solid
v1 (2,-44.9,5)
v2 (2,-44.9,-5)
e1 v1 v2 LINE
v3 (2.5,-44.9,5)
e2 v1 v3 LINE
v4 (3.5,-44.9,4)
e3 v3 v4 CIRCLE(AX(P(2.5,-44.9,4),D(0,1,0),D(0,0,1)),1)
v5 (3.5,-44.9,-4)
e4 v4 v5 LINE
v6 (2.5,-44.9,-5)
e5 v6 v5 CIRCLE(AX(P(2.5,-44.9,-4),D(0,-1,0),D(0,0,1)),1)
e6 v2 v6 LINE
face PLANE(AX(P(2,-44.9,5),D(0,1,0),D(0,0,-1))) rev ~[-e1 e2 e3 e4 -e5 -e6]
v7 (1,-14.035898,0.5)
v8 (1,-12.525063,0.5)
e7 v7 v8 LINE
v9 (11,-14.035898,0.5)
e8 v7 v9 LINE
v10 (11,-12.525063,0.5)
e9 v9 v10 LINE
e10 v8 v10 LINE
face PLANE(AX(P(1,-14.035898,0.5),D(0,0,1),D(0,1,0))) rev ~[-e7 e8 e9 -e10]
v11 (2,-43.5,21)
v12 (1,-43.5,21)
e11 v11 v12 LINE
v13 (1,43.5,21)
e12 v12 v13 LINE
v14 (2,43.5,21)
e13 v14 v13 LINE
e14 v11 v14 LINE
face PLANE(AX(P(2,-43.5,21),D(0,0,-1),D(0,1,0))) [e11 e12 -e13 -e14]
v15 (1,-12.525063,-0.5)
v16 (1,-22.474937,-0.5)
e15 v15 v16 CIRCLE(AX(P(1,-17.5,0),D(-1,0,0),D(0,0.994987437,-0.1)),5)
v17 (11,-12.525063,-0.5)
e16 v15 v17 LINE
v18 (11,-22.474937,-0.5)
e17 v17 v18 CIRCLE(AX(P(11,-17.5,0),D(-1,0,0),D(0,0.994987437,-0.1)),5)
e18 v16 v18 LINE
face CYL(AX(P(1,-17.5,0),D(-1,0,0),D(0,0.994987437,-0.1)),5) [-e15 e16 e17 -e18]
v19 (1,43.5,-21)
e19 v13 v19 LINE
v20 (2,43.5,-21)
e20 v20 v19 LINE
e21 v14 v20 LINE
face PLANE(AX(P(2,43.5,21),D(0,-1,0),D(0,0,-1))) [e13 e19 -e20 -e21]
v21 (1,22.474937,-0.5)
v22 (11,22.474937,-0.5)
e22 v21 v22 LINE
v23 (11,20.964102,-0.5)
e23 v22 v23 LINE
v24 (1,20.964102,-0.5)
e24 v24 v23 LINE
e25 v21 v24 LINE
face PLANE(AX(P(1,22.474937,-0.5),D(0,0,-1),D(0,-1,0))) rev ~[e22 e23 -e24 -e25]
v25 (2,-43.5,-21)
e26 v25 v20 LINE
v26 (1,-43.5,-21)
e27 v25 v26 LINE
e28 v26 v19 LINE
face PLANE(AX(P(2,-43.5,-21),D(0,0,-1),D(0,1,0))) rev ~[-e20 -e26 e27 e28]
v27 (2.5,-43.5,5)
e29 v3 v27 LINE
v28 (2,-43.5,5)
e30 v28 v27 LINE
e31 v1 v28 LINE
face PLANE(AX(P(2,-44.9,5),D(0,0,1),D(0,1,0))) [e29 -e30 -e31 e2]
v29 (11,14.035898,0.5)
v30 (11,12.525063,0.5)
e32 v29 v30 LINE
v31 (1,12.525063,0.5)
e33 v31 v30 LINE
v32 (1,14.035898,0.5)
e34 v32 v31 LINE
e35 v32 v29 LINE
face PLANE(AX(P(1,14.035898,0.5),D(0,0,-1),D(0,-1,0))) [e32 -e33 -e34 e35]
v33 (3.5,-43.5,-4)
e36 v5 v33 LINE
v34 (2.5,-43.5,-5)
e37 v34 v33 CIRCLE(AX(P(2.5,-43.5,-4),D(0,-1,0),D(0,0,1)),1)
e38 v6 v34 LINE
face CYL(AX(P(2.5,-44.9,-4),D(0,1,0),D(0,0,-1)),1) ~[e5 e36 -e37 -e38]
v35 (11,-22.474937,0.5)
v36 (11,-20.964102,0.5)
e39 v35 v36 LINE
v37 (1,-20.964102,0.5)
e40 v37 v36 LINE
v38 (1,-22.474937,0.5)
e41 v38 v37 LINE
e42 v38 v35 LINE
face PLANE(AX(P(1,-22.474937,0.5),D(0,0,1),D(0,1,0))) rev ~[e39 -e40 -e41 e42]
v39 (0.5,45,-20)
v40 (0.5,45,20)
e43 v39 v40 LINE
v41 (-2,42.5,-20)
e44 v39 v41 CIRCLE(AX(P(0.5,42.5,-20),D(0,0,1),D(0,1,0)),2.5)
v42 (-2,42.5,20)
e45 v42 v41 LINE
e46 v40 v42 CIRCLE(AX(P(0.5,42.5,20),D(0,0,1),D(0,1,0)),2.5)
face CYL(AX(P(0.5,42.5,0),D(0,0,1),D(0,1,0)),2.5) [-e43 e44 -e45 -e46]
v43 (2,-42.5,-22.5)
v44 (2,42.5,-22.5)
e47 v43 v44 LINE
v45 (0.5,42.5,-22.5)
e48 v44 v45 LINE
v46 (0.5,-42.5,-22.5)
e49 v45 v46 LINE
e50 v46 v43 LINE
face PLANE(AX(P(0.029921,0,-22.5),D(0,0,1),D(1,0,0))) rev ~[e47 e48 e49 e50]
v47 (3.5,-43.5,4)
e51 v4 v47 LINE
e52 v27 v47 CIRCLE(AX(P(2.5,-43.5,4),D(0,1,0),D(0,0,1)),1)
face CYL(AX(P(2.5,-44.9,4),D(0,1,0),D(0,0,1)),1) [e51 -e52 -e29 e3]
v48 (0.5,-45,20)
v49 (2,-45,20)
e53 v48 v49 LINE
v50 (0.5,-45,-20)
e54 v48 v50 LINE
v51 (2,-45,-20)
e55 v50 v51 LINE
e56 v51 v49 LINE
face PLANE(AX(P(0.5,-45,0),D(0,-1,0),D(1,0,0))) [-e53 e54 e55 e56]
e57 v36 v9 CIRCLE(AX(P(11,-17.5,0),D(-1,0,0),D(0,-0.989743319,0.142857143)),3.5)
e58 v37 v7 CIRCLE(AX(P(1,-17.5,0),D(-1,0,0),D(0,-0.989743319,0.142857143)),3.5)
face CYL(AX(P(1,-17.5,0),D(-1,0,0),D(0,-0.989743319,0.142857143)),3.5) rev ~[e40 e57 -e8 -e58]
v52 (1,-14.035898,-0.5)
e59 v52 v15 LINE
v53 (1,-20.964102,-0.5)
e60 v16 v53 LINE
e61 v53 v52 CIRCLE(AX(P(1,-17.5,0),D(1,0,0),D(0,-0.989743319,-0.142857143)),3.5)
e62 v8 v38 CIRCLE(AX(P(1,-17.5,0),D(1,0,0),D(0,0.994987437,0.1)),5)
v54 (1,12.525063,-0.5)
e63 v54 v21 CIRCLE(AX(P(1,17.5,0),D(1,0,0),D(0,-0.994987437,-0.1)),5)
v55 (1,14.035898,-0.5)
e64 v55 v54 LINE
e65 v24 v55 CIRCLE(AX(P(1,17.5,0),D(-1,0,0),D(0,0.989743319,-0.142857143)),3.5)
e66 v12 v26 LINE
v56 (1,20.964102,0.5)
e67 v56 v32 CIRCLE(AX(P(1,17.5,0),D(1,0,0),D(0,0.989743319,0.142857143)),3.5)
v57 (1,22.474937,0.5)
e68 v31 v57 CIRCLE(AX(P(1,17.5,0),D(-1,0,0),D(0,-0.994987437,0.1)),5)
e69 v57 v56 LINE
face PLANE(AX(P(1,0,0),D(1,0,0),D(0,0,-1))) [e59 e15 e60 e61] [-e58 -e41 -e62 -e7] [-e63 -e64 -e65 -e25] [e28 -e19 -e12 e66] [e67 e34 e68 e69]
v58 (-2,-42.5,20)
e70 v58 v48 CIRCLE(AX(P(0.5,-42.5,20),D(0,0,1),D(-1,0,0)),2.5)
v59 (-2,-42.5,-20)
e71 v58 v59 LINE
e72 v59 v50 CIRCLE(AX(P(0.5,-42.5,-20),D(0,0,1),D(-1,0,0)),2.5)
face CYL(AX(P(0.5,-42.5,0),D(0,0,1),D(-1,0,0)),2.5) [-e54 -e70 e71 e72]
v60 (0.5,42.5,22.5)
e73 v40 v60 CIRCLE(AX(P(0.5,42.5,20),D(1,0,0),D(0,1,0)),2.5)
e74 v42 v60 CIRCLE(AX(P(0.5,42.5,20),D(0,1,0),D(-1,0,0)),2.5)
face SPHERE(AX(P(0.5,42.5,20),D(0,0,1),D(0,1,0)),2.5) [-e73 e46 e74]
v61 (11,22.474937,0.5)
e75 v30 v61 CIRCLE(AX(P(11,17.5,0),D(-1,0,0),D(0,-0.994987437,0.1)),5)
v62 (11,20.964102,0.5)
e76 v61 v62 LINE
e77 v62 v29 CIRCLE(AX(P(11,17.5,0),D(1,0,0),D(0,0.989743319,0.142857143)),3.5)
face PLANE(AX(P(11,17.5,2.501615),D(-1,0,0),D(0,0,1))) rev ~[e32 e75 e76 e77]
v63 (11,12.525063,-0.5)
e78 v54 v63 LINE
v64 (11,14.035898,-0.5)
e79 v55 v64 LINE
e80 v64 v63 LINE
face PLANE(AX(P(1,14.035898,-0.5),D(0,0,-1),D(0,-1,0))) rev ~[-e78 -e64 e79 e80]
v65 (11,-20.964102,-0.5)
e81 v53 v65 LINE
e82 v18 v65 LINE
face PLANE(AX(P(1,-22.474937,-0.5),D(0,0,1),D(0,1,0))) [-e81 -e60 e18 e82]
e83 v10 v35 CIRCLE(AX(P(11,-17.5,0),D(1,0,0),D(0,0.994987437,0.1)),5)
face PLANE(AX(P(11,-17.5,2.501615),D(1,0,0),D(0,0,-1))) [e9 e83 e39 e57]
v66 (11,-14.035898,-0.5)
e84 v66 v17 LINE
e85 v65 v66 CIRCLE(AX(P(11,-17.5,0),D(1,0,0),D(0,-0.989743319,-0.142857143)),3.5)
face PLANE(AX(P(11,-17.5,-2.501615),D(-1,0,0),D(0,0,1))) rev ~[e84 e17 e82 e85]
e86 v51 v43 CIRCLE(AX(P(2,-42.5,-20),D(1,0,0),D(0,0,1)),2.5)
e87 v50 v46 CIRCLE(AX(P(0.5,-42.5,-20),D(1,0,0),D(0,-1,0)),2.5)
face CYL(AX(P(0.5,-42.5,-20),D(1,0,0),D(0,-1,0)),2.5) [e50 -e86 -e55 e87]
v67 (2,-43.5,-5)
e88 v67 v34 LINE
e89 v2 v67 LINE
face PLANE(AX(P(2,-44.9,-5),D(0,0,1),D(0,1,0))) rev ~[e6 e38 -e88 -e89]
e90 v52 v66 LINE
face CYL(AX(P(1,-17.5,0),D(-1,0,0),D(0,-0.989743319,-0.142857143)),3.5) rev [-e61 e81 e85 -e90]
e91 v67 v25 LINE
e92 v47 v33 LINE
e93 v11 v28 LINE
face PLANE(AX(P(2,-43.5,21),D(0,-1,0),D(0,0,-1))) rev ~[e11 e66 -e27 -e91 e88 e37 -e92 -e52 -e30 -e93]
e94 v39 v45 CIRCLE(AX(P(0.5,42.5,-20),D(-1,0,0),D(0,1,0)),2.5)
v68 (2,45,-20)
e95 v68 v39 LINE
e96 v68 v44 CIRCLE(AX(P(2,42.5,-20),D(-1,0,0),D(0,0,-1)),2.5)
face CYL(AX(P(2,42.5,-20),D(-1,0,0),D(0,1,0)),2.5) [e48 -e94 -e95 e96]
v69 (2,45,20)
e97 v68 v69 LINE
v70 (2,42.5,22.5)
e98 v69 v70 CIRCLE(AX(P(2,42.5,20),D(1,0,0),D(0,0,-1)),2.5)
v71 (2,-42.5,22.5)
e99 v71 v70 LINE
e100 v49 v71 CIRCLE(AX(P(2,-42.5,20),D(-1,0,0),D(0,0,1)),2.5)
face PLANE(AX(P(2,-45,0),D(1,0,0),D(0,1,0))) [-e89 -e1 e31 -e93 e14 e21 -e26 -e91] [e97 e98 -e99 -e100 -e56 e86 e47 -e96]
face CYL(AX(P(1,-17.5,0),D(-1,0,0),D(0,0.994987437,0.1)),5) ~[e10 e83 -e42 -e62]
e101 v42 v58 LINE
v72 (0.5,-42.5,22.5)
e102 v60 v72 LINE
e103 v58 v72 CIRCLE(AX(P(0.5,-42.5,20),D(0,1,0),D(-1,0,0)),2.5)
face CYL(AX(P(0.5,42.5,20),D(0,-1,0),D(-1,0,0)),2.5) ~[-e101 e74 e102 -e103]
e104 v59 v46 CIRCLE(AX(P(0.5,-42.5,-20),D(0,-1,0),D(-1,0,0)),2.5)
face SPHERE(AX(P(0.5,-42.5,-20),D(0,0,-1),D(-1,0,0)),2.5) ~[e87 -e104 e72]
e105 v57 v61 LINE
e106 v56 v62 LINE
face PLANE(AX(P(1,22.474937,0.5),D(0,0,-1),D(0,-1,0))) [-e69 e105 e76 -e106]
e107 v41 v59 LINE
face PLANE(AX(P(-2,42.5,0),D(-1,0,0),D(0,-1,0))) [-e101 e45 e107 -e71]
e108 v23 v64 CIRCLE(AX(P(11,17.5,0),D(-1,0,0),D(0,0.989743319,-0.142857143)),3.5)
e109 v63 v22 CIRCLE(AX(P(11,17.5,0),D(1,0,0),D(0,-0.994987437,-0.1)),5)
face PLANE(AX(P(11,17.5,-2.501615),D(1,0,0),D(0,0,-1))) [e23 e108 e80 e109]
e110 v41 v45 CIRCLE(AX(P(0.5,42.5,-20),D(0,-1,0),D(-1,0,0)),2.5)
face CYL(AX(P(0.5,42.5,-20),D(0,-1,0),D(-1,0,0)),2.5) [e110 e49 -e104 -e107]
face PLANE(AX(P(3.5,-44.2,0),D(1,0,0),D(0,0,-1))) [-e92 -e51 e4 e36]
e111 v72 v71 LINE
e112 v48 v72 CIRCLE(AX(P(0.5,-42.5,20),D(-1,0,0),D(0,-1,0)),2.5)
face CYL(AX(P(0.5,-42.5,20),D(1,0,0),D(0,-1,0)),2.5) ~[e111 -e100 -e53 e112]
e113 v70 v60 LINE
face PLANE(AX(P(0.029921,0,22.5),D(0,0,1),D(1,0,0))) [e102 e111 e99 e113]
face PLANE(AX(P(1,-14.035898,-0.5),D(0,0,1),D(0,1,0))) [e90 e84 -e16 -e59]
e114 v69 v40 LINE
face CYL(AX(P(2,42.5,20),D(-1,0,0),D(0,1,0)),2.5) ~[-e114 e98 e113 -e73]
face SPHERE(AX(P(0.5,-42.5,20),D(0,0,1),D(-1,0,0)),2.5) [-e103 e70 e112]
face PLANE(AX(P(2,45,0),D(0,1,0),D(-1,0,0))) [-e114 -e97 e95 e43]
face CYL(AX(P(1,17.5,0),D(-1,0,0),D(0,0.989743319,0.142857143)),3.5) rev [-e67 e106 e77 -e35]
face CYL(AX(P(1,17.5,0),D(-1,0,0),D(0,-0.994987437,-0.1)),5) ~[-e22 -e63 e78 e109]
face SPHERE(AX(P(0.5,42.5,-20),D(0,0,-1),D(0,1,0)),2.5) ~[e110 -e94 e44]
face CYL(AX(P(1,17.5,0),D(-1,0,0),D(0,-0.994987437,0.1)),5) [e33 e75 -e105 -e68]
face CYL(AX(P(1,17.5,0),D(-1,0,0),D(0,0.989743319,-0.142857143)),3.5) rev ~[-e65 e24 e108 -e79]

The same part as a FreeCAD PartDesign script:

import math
import FreeCAD as App
import Part
import Sketcher
from FreeCAD import Vector
Q = App.Units.Quantity


def edges_at(feature, points):
    """Names of the edges that pass closest to the given points."""
    edges = feature.Shape.Edges
    near = lambda p: min(range(len(edges)), key=lambda i: edges[i].distToShape(Part.Vertex(*p))[0])
    return sorted({f"Edge{near(p) + 1}" for p in points})


def add_polygon(sketch, points):
    """Adds a closed chain of lines whose ends are joined by coincident constraints."""
    first, n = sketch.GeometryCount, len(points)
    for a, b in zip(points, points[1:] + points[:1]):
        sketch.addGeometry(Part.LineSegment(App.Vector(*a, 0), App.Vector(*b, 0)), False)
    for i in range(n):
        sketch.addConstraint(Sketcher.Constraint("Coincident", first + i, 2, first + (i + 1) % n, 1))

doc = App.newDocument("Part")
body = doc.addObject("PartDesign::Body", "Body")

# Sketch on XY plane
sketch1 = doc.addObject("Sketcher::SketchObject", "Sketch")
body.addObject(sketch1)
sketch1.AttachmentSupport = (doc.XY_Plane, [""])
sketch1.MapMode = "FlatFace"
sketch1.addGeometry([
    Part.LineSegment(Vector(0.5, -45, 0), Vector(2, -45, 0)),  # 0
    Part.LineSegment(Vector(2, -45, 0), Vector(2, 45, 0)),  # 1
    Part.LineSegment(Vector(2, 45, 0), Vector(0.5, 45, 0)),  # 2
    Part.ArcOfCircle(Part.Circle(Vector(0.5, 42.5, 0), Vector(0, 0, 1), 2.5), math.radians(90), math.radians(180)),  # 3
    Part.LineSegment(Vector(-2, 42.5, 0), Vector(-2, -42.5, 0)),  # 4
    Part.ArcOfCircle(Part.Circle(Vector(0.5, -42.5, 0), Vector(0, 0, 1), 2.5), math.radians(180), math.radians(270)),  # 5
], False)
sketch1.addConstraint([
    Sketcher.Constraint("Coincident", 0, 2, 1, 1),
    Sketcher.Constraint("Coincident", 1, 2, 2, 1),
    Sketcher.Constraint("Tangent", 2, 2, 3, 1),
    Sketcher.Constraint("Tangent", 3, 2, 4, 1),
    Sketcher.Constraint("Tangent", 4, 2, 5, 1),
    Sketcher.Constraint("Tangent", 5, 2, 0, 1),
    Sketcher.Constraint("Horizontal", 0),
    Sketcher.Constraint("Vertical", 1),
    Sketcher.Constraint("Horizontal", 2),
    Sketcher.Constraint("Vertical", 4),
    Sketcher.Constraint("Equal", 3, 5),
    Sketcher.Constraint("Radius", 3, Q("2.5 mm")),
    Sketcher.Constraint("DistanceY", 1, 1, 1, 2, Q("90 mm")),
    Sketcher.Constraint("DistanceX", 0, 1, 0, 2, Q("1.5 mm")),
    Sketcher.Constraint("DistanceX", -1, 1, 0, 2, Q("2 mm")),
    Sketcher.Constraint("DistanceY", 0, 2, -1, 1, Q("45 mm")),
])
pad1 = doc.addObject("PartDesign::Pad", "Pad")
body.addObject(pad1)
pad1.Profile = sketch1
pad1.Type = "TwoLengths"
pad1.Length = 22.5
pad1.Length2 = 22.5
doc.recompute()

fillet = doc.addObject("PartDesign::Fillet", "Fillet")
body.addObject(fillet)
fillet.Base = (pad1, edges_at(pad1, [
    (-1.268, 44.268, -22.5),
    (-2, 0, -22.5),
    (1.25, 45, 22.5),
    (-1.268, 44.268, 22.5),
    (-2, 0, 22.5),
    (-1.268, -44.268, 22.5),
    (1.25, -45, 22.5),
    (-1.268, -44.268, -22.5),
    (1.25, -45, -22.5),
    (1.25, 45, -22.5),
]))
fillet.Radius = 2.5

# Sketch on YZ plane
sketch2 = doc.addObject("Sketcher::SketchObject", "Sketch001")
body.addObject(sketch2)
sketch2.AttachmentSupport = (doc.YZ_Plane, [""])
sketch2.MapMode = "FlatFace"
sketch2.AttachmentOffset = App.Placement(Vector(0, 0, 2), App.Rotation())
add_polygon(sketch2, [(44, 21), (-44, 21), (-44, -21), (44, -21)])  # lines 0-3
sketch2.addConstraint([
    Sketcher.Constraint("Horizontal", 0),
    Sketcher.Constraint("Vertical", 1),
    Sketcher.Constraint("Horizontal", 2),
    Sketcher.Constraint("Vertical", 3),
    Sketcher.Constraint("Symmetric", 0, 2, 2, 2, -1, 1),
    Sketcher.Constraint("DistanceX", 0, 2, 0, 1, Q("87 mm")),
    Sketcher.Constraint("DistanceY", 1, 2, 1, 1, Q("42 mm")),
])
pocket1 = doc.addObject("PartDesign::Pocket", "Pocket")
body.addObject(pocket1)
pocket1.Profile = sketch2
pocket1.Length = 1

# Sketch on YZ plane
sketch3 = doc.addObject("Sketcher::SketchObject", "Sketch002")
body.addObject(sketch3)
sketch3.AttachmentSupport = (doc.YZ_Plane, [""])
sketch3.MapMode = "FlatFace"
sketch3.AttachmentOffset = App.Placement(Vector(0, 0, 1), App.Rotation())
sketch3.addGeometry([
    Part.LineSegment(Vector(21, 0.5, 0), Vector(22.5, 0.5, 0)),  # 0
    Part.ArcOfCircle(Part.Circle(Vector(17.5, 0, 0), Vector(0, 0, 1), 5), math.radians(6), math.radians(174)),  # 1
    Part.LineSegment(Vector(12.5, 0.5, 0), Vector(14, 0.5, 0)),  # 2
    Part.ArcOfCircle(Part.Circle(Vector(17.5, 0, 0), Vector(0, 0, 1), 3.5), math.radians(8), math.radians(172)),  # 3
    Part.LineSegment(Vector(22.5, -0.5, 0), Vector(21, -0.5, 0)),  # 4
    Part.ArcOfCircle(Part.Circle(Vector(17.5, 0, 0), Vector(0, 0, 1), 3.5), math.radians(-172), math.radians(-8)),  # 5
    Part.LineSegment(Vector(14, -0.5, 0), Vector(12.5, -0.5, 0)),  # 6
    Part.ArcOfCircle(Part.Circle(Vector(17.5, 0, 0), Vector(0, 0, 1), 5), math.radians(-174), math.radians(-6)),  # 7
    Part.LineSegment(Vector(-14, 0.5, 0), Vector(-12.5, 0.5, 0)),  # 8
    Part.ArcOfCircle(Part.Circle(Vector(-17.5, 0, 0), Vector(0, 0, 1), 5), math.radians(6), math.radians(174)),  # 9
    Part.LineSegment(Vector(-22.5, 0.5, 0), Vector(-21, 0.5, 0)),  # 10
    Part.ArcOfCircle(Part.Circle(Vector(-17.5, 0, 0), Vector(0, 0, 1), 3.5), math.radians(8), math.radians(172)),  # 11
    Part.LineSegment(Vector(-12.5, -0.5, 0), Vector(-14, -0.5, 0)),  # 12
    Part.ArcOfCircle(Part.Circle(Vector(-17.5, 0, 0), Vector(0, 0, 1), 3.5), math.radians(-172), math.radians(-8)),  # 13
    Part.LineSegment(Vector(-21, -0.5, 0), Vector(-22.5, -0.5, 0)),  # 14
    Part.ArcOfCircle(Part.Circle(Vector(-17.5, 0, 0), Vector(0, 0, 1), 5), math.radians(-174), math.radians(-6)),  # 15
], False)
sketch3.addConstraint([
    Sketcher.Constraint("Coincident", 0, 2, 1, 1),
    Sketcher.Constraint("Coincident", 1, 2, 2, 1),
    Sketcher.Constraint("Coincident", 2, 2, 3, 2),
    Sketcher.Constraint("Coincident", 3, 1, 0, 1),
    Sketcher.Constraint("Coincident", 4, 2, 5, 2),
    Sketcher.Constraint("Coincident", 5, 1, 6, 1),
    Sketcher.Constraint("Coincident", 6, 2, 7, 1),
    Sketcher.Constraint("Coincident", 7, 2, 4, 1),
    Sketcher.Constraint("Coincident", 8, 2, 9, 1),
    Sketcher.Constraint("Coincident", 9, 2, 10, 1),
    Sketcher.Constraint("Coincident", 10, 2, 11, 2),
    Sketcher.Constraint("Coincident", 11, 1, 8, 1),
    Sketcher.Constraint("Coincident", 12, 2, 13, 2),
    Sketcher.Constraint("Coincident", 13, 1, 14, 1),
    Sketcher.Constraint("Coincident", 14, 2, 15, 1),
    Sketcher.Constraint("Coincident", 15, 2, 12, 1),
    Sketcher.Constraint("Horizontal", 0),
    Sketcher.Constraint("Horizontal", 2),
    Sketcher.Constraint("Horizontal", 4),
    Sketcher.Constraint("Horizontal", 6),
    Sketcher.Constraint("Horizontal", 8),
    Sketcher.Constraint("Horizontal", 10),
    Sketcher.Constraint("Horizontal", 12),
    Sketcher.Constraint("Horizontal", 14),
    Sketcher.Constraint("Coincident", 3, 3, 1, 3),
    Sketcher.Constraint("Coincident", 5, 3, 1, 3),
    Sketcher.Constraint("Coincident", 7, 3, 1, 3),
    Sketcher.Constraint("Coincident", 11, 3, 9, 3),
    Sketcher.Constraint("Coincident", 13, 3, 9, 3),
    Sketcher.Constraint("Coincident", 15, 3, 9, 3),
    Sketcher.Constraint("Equal", 3, 5),
    Sketcher.Constraint("Equal", 1, 7),
    Sketcher.Constraint("Equal", 7, 9),
    Sketcher.Constraint("Equal", 5, 11),
    Sketcher.Constraint("Equal", 11, 13),
    Sketcher.Constraint("Equal", 9, 15),
    Sketcher.Constraint("Symmetric", 1, 3, 9, 3, -1, 1),
    Sketcher.Constraint("Symmetric", 1, 2, 8, 2, -2),
    Sketcher.Constraint("Horizontal", 0, 2, 1, 2),
    Sketcher.Constraint("Horizontal", 4, 2, 5, 1),
    Sketcher.Constraint("Horizontal", 8, 2, 9, 2),
    Sketcher.Constraint("Horizontal", 7, 2, 12, 2),
    Sketcher.Constraint("Horizontal", 12, 2, 13, 1),
    Sketcher.Constraint("Vertical", 3, 1, 4, 2),
    Sketcher.Constraint("Radius", 1, Q("5 mm")),
    Sketcher.Constraint("Radius", 3, Q("3.5 mm")),
    Sketcher.Constraint("DistanceX", 9, 3, 1, 3, Q("35 mm")),
    Sketcher.Constraint("DistanceY", 4, 2, 3, 1, Q("1 mm")),
])
pad2 = doc.addObject("PartDesign::Pad", "Pad001")
body.addObject(pad2)
pad2.Profile = sketch3
pad2.Length = 10

# Sketch on YZ plane
sketch4 = doc.addObject("Sketcher::SketchObject", "Sketch003")
body.addObject(sketch4)
sketch4.AttachmentSupport = (doc.YZ_Plane, [""])
sketch4.MapMode = "FlatFace"
sketch4.AttachmentOffset = App.Placement(Vector(0, 0, 2), App.Rotation())
add_polygon(sketch4, [(-43.5, 5), (-44.9, 5), (-44.9, -5), (-43.5, -5)])  # lines 0-3
sketch4.addConstraint([
    Sketcher.Constraint("Horizontal", 0),
    Sketcher.Constraint("Vertical", 1),
    Sketcher.Constraint("Horizontal", 2),
    Sketcher.Constraint("Vertical", 3),
    Sketcher.Constraint("DistanceY", 1, 2, 1, 1, Q("10 mm")),
    Sketcher.Constraint("DistanceX", 0, 2, 0, 1, Q("1.4 mm")),
    Sketcher.Constraint("DistanceY", -1, 1, 0, 2, Q("5 mm")),
    Sketcher.Constraint("DistanceX", 0, 2, -1, 1, Q("44.9 mm")),
])
pad3 = doc.addObject("PartDesign::Pad", "Pad002")
body.addObject(pad3)
pad3.Profile = sketch4
pad3.Length = 1.5
doc.recompute()

fillet2 = doc.addObject("PartDesign::Fillet", "Fillet001")
body.addObject(fillet2)
fillet2.Base = (pad3, edges_at(pad3, [(3.5, -44.2, 5), (3.5, -44.2, -5)]))
fillet2.Radius = 1

doc.recompute()
